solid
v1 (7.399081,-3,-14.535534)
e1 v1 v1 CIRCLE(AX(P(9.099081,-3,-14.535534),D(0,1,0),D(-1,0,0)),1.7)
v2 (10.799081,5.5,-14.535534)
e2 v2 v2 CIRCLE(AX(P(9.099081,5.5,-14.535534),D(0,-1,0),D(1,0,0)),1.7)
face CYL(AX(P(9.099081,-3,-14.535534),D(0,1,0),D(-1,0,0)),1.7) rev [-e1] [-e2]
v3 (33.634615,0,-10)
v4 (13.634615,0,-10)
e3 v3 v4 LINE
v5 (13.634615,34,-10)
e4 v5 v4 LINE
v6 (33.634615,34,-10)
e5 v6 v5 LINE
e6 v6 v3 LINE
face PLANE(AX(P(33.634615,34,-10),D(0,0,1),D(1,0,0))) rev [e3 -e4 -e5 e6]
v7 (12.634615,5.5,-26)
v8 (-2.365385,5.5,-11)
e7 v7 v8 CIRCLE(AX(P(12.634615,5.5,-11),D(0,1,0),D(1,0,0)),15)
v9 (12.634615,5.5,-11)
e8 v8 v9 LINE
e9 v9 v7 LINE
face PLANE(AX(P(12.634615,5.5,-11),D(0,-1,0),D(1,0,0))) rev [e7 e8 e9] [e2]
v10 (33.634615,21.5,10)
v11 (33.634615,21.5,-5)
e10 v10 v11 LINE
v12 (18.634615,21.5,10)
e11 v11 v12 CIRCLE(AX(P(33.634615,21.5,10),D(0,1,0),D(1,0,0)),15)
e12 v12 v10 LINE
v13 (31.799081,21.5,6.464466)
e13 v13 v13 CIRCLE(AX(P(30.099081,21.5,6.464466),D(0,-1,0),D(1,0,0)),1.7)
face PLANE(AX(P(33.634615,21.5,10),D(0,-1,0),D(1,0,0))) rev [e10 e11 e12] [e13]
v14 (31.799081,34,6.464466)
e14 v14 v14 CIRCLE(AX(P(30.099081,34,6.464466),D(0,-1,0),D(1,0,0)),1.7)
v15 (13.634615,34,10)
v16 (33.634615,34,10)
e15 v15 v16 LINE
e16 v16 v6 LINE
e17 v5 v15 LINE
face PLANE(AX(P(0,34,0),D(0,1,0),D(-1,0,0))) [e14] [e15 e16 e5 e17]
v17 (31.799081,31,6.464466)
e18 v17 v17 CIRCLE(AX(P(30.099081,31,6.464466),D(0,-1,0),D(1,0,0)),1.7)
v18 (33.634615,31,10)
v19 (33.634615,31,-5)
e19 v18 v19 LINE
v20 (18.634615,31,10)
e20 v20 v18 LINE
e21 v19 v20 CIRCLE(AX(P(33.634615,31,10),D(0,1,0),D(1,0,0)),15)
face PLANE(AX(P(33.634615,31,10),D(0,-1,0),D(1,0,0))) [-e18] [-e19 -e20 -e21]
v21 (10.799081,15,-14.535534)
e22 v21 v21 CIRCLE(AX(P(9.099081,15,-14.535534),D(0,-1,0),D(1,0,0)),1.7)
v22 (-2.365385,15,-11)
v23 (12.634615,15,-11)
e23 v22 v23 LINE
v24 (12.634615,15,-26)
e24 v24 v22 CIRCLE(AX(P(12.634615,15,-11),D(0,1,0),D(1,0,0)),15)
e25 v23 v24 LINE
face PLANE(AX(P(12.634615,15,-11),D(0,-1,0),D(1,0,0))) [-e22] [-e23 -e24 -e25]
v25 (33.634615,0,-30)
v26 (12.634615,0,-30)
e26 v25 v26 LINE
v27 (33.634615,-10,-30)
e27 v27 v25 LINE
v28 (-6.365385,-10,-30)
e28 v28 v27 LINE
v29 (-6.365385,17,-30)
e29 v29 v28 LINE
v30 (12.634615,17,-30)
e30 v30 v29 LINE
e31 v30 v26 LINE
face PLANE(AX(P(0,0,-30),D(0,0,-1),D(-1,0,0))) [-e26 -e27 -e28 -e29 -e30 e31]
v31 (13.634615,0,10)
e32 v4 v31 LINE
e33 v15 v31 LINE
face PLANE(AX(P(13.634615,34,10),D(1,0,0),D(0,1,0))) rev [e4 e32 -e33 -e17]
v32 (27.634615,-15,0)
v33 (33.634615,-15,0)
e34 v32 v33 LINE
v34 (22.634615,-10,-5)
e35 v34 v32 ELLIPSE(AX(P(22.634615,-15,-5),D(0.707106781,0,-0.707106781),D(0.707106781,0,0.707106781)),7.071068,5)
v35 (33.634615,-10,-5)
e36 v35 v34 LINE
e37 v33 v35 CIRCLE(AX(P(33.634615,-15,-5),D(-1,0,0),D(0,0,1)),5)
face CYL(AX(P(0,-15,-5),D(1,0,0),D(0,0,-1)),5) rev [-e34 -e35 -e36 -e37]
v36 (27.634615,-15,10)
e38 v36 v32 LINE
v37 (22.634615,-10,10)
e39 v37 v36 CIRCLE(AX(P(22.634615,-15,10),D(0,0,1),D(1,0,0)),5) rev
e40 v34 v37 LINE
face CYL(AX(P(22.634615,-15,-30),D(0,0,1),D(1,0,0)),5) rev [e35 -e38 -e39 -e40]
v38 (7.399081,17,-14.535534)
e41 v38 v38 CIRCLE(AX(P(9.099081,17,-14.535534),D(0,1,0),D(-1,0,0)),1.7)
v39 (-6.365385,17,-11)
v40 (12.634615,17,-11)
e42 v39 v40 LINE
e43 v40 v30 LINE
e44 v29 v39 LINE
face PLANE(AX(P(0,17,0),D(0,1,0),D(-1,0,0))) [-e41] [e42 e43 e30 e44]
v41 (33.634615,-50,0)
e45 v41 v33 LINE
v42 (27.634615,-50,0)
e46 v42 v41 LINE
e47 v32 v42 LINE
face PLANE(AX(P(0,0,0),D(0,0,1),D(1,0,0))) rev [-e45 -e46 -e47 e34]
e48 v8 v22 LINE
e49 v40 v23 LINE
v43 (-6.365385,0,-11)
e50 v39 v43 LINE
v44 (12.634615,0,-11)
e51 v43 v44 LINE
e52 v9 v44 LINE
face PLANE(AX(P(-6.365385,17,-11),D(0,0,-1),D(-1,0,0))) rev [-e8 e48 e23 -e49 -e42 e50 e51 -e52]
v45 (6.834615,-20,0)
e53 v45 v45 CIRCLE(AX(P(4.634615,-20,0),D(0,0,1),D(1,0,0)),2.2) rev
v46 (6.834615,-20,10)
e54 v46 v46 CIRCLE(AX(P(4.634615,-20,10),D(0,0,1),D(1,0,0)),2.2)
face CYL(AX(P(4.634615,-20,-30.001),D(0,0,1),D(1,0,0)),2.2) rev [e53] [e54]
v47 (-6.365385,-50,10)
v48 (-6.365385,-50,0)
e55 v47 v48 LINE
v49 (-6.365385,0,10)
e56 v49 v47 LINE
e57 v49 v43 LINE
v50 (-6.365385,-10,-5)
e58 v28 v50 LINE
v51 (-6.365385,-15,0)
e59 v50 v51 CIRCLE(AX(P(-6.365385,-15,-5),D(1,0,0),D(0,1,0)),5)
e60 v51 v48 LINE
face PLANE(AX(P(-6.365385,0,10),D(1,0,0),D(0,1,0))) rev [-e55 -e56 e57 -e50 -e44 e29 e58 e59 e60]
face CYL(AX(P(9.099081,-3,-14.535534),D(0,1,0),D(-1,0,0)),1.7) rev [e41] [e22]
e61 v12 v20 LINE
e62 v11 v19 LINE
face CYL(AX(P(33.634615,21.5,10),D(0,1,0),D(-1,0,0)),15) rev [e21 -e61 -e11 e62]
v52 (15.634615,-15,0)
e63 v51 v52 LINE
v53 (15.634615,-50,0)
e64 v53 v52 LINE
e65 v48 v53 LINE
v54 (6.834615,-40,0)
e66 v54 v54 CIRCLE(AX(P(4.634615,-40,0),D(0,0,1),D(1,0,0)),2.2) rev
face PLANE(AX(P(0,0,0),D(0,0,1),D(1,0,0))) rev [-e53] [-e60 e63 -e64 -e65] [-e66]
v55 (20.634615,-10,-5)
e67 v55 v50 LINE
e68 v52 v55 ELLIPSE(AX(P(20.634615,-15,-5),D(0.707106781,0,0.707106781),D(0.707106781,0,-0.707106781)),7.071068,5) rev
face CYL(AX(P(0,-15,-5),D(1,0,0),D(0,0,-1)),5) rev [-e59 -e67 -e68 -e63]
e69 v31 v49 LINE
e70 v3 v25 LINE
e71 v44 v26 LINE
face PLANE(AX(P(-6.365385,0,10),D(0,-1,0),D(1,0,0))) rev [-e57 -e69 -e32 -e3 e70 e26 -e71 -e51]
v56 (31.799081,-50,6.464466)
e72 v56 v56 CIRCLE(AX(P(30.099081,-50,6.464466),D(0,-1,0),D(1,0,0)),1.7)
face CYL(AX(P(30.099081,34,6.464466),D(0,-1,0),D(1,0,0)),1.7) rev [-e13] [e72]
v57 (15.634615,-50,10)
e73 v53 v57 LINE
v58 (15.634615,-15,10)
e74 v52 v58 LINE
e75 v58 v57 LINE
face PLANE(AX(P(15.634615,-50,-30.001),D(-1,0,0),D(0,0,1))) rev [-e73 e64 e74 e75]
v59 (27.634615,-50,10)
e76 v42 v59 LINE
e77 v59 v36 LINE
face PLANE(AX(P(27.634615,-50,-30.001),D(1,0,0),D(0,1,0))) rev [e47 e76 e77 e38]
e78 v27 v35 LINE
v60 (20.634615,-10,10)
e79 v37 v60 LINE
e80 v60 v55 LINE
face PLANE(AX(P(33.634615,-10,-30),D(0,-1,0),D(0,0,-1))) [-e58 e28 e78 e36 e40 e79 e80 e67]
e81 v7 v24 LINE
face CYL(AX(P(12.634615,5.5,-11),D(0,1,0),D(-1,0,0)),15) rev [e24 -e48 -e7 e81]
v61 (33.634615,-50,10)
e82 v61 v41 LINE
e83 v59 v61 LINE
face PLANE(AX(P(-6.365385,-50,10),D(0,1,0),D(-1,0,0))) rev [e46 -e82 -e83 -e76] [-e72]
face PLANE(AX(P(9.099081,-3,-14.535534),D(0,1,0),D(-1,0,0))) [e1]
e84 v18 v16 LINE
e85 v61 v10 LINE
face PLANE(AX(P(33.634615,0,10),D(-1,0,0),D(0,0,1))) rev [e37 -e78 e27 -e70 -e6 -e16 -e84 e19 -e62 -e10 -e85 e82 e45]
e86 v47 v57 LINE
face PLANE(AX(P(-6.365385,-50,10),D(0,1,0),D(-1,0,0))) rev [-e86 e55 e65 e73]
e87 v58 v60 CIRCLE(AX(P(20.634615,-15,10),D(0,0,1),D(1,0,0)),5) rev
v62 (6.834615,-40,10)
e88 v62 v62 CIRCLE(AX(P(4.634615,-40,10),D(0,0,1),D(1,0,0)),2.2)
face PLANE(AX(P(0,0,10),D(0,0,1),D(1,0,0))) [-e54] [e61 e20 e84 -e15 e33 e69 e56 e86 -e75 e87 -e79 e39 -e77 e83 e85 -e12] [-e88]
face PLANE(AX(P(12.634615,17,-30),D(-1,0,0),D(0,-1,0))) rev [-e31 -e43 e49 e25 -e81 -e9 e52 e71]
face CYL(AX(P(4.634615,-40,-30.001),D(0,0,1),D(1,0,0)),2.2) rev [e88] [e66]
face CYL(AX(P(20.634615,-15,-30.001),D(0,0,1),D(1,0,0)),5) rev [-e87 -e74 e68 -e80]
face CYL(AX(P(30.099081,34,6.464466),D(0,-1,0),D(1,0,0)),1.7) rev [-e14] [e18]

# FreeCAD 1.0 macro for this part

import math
import FreeCAD as App
import Part
import Sketcher

V = App.Vector
Q = App.Units.Quantity


def edges_at(feature, points):
    """Names of the edges that pass closest to the given points."""
    edges = feature.Shape.Edges
    near = lambda p: min(range(len(edges)), key=lambda i: edges[i].distToShape(Part.Vertex(*p))[0])
    return sorted({f"Edge{near(p) + 1}" for p in points})


def add_polygon(sketch, points):
    """Adds a closed chain of lines whose ends are joined by coincident constraints."""
    first, n = sketch.GeometryCount, len(points)
    for a, b in zip(points, points[1:] + points[:1]):
        sketch.addGeometry(Part.LineSegment(App.Vector(*a, 0), App.Vector(*b, 0)), False)
    for i in range(n):
        sketch.addConstraint(Sketcher.Constraint("Coincident", first + i, 2, first + (i + 1) % n, 1))

doc = App.newDocument("Part")
body = doc.addObject("PartDesign::Body", "Body")

sketch1 = doc.addObject("Sketcher::SketchObject", "Sketch")
body.addObject(sketch1)
sketch1.AttachmentSupport = (doc.XY_Plane, [""])
sketch1.MapMode = "FlatFace"
add_polygon(sketch1, [(-6, 0), (-6, -50), (34, -50), (34, 0)])
sketch1.addConstraint([
    Sketcher.Constraint("Vertical", 0),
    Sketcher.Constraint("Horizontal", 1),
    Sketcher.Constraint("Vertical", 2),
    Sketcher.Constraint("Horizontal", 3),
    Sketcher.Constraint("PointOnObject", 2, 2, -1),
    Sketcher.Constraint("DistanceX", 1, 1, 1, 2, Q("40 mm")),
    Sketcher.Constraint("DistanceY", 0, 2, 0, 1, Q("50 mm")),
    Sketcher.Constraint("DistanceX", 0, 2, -1, 1, Q("6.365385 mm")),
])
pad1 = doc.addObject("PartDesign::Pad", "Pad")
body.addObject(pad1)
pad1.Profile = sketch1
pad1.Length = 10

sketch2 = doc.addObject("Sketcher::SketchObject", "Sketch001")
body.addObject(sketch2)
sketch2.AttachmentSupport = (doc.XY_Plane, [""])
sketch2.MapMode = "FlatFace"
add_polygon(sketch2, [(-6, 0), (-6, -10), (34, -10), (34, 0)])
sketch2.addConstraint([
    Sketcher.Constraint("Vertical", 0),
    Sketcher.Constraint("Horizontal", 1),
    Sketcher.Constraint("Vertical", 2),
    Sketcher.Constraint("Horizontal", 3),
    Sketcher.Constraint("PointOnObject", 2, 2, -1),
    Sketcher.Constraint("DistanceX", 1, 1, 1, 2, Q("40 mm")),
    Sketcher.Constraint("DistanceY", 0, 2, 0, 1, Q("10 mm")),
    Sketcher.Constraint("DistanceX", 0, 2, -1, 1, Q("6.365385 mm")),
])
pad2 = doc.addObject("PartDesign::Pad", "Pad001")
body.addObject(pad2)
pad2.Profile = sketch2
pad2.Length = 30
pad2.Reversed = True

sketch3 = doc.addObject("Sketcher::SketchObject", "Sketch002")
body.addObject(sketch3)
sketch3.AttachmentSupport = (doc.XZ_Plane, [""])
sketch3.MapMode = "FlatFace"
add_polygon(sketch3, [(14, -10), (14, 10), (34, 10), (34, -10)])
sketch3.addConstraint([
    Sketcher.Constraint("Vertical", 0),
    Sketcher.Constraint("Horizontal", 1),
    Sketcher.Constraint("Vertical", 2),
    Sketcher.Constraint("Horizontal", 3),
    Sketcher.Constraint("Equal", 3, 0),
    Sketcher.Constraint("DistanceX", 1, 1, 1, 2, Q("20 mm")),
    Sketcher.Constraint("DistanceY", -1, 1, 0, 2, Q("10 mm")),
    Sketcher.Constraint("DistanceX", -1, 1, 0, 2, Q("13.634615 mm")),
])
pad3 = doc.addObject("PartDesign::Pad", "Pad002")
body.addObject(pad3)
pad3.Profile = sketch3
pad3.Length = 34
pad3.Reversed = True

sketch4 = doc.addObject("Sketcher::SketchObject", "Sketch003")
body.addObject(sketch4)
sketch4.AttachmentSupport = (doc.XZ_Plane, [""])
sketch4.MapMode = "FlatFace"
add_polygon(sketch4, [(-6, -30), (-6, -11), (13, -11), (13, -30)])
sketch4.addConstraint([
    Sketcher.Constraint("Vertical", 0),
    Sketcher.Constraint("Horizontal", 1),
    Sketcher.Constraint("Vertical", 2),
    Sketcher.Constraint("Horizontal", 3),
    Sketcher.Constraint("Equal", 3, 0),
    Sketcher.Constraint("DistanceX", 1, 1, 1, 2, Q("19 mm")),
    Sketcher.Constraint("DistanceY", 0, 2, -1, 1, Q("11 mm")),
    Sketcher.Constraint("DistanceX", 0, 2, -1, 1, Q("6.365385 mm")),
])
pad4 = doc.addObject("PartDesign::Pad", "Pad003")
body.addObject(pad4)
pad4.Profile = sketch4
pad4.Length = 17
pad4.Reversed = True

sketch5 = doc.addObject("Sketcher::SketchObject", "Sketch004")
body.addObject(sketch5)
sketch5.AttachmentSupport = (doc.XZ_Plane, [""])
sketch5.MapMode = "FlatFace"
sketch5.AttachmentOffset = App.Placement(V(0, 0, -31), App.Rotation())
sketch5.addGeometry([
    Part.LineSegment(V(34, 10, 0), V(34, -5, 0)),
    Part.ArcOfCircle(Part.Circle(V(34, 10, 0), V(0, 0, 1), 15), math.radians(-180), math.radians(-90)),
    Part.LineSegment(V(19, 10, 0), V(34, 10, 0)),
], False)
sketch5.addConstraint([
    Sketcher.Constraint("Coincident", 0, 2, 1, 2),
    Sketcher.Constraint("Coincident", 1, 1, 2, 1),
    Sketcher.Constraint("Coincident", 2, 2, 0, 1),
    Sketcher.Constraint("Vertical", 0),
    Sketcher.Constraint("Horizontal", 2),
    Sketcher.Constraint("Coincident", 2, 2, 1, 3),
    Sketcher.Constraint("Radius", 1, Q("15 mm")),
    Sketcher.Constraint("DistanceY", -1, 1, 1, 3, Q("10 mm")),
    Sketcher.Constraint("DistanceX", -1, 1, 1, 3, Q("33.634615 mm")),
])
pocket1 = doc.addObject("PartDesign::Pocket", "Pocket")
body.addObject(pocket1)
pocket1.Profile = sketch5
pocket1.Length = 9.5
pocket1.Reversed = True

sketch6 = doc.addObject("Sketcher::SketchObject", "Sketch005")
body.addObject(sketch6)
sketch6.AttachmentSupport = (doc.XZ_Plane, [""])
sketch6.MapMode = "FlatFace"
sketch6.AttachmentOffset = App.Placement(V(0, 0, -15), App.Rotation())
sketch6.addGeometry([
    Part.LineSegment(V(-2, -11, 0), V(13, -11, 0)),
    Part.LineSegment(V(13, -11, 0), V(13, -26, 0)),
    Part.ArcOfCircle(Part.Circle(V(13, -11, 0), V(0, 0, 1), 15), math.radians(-180), math.radians(-90)),
], False)
sketch6.addConstraint([
    Sketcher.Constraint("Coincident", 0, 2, 1, 1),
    Sketcher.Constraint("Coincident", 1, 2, 2, 2),
    Sketcher.Constraint("Coincident", 2, 1, 0, 1),
    Sketcher.Constraint("Horizontal", 0),
    Sketcher.Constraint("Vertical", 1),
    Sketcher.Constraint("Coincident", 0, 2, 2, 3),
    Sketcher.Constraint("Radius", 2, Q("15 mm")),
    Sketcher.Constraint("DistanceY", 2, 3, -1, 1, Q("11 mm")),
    Sketcher.Constraint("DistanceX", -1, 1, 2, 3, Q("12.634615 mm")),
])
pocket2 = doc.addObject("PartDesign::Pocket", "Pocket001")
body.addObject(pocket2)
pocket2.Profile = sketch6
pocket2.Length = 9.5
pocket2.Reversed = True

sketch7 = doc.addObject("Sketcher::SketchObject", "Sketch006")
body.addObject(sketch7)
sketch7.AttachmentSupport = (doc.XZ_Plane, [""])
sketch7.MapMode = "FlatFace"
sketch7.AttachmentOffset = App.Placement(V(0, 0, -31), App.Rotation())
sketch7.addGeometry(Part.Circle(V(30.1, 6.5, 0), V(0, 0, 1), 1.7), False)
sketch7.addConstraint([
    Sketcher.Constraint("Diameter", 0, Q("3.4 mm")),
    Sketcher.Constraint("DistanceX", -1, 1, 0, 3, Q("30.099081 mm")),
    Sketcher.Constraint("DistanceY", -1, 1, 0, 3, Q("6.464466 mm")),
])
pocket3 = doc.addObject("PartDesign::Pocket", "Pocket002")
body.addObject(pocket3)
pocket3.Profile = sketch7
pocket3.Type = "ThroughAll"
pocket3.Midplane = True

sketch8 = doc.addObject("Sketcher::SketchObject", "Sketch007")
body.addObject(sketch8)
sketch8.AttachmentSupport = (doc.XY_Plane, [""])
sketch8.MapMode = "FlatFace"
sketch8.AttachmentOffset = App.Placement(V(0, 0, 10), App.Rotation())
add_polygon(sketch8, [(16, -10), (16, -50), (28, -50), (28, -10)])
sketch8.addConstraint([
    Sketcher.Constraint("Vertical", 0),
    Sketcher.Constraint("Horizontal", 1),
    Sketcher.Constraint("Vertical", 2),
    Sketcher.Constraint("Horizontal", 3),
    Sketcher.Constraint("DistanceX", 1, 1, 1, 2, Q("12 mm")),
    Sketcher.Constraint("DistanceY", 0, 2, 0, 1, Q("40 mm")),
    Sketcher.Constraint("DistanceY", 0, 2, -1, 1, Q("50 mm")),
    Sketcher.Constraint("DistanceX", -1, 1, 0, 2, Q("15.634615 mm")),
])
pocket4 = doc.addObject("PartDesign::Pocket", "Pocket003")
body.addObject(pocket4)
pocket4.Profile = sketch8
pocket4.Type = "UpToFirst"
doc.recompute()

fillet = doc.addObject("PartDesign::Fillet", "Fillet")
body.addObject(fillet)
fillet.Base = (pocket4, edges_at(pocket4, [
    (4.635, -10, 0),
    (30.635, -10, 0),
    (27.635, -10, 5),
    (15.635, -10, 5),
]))
fillet.Radius = 5

sketch9 = doc.addObject("Sketcher::SketchObject", "Sketch008")
body.addObject(sketch9)
sketch9.AttachmentSupport = (doc.XY_Plane, [""])
sketch9.MapMode = "FlatFace"
sketch9.AttachmentOffset = App.Placement(V(0, 0, 10), App.Rotation())
sketch9.addGeometry(Part.Circle(V(4.6, -20, 0), V(0, 0, 1), 2.2), False)
sketch9.addConstraint([
    Sketcher.Constraint("Diameter", 0, Q("4.4 mm")),
    Sketcher.Constraint("DistanceY", 0, 3, -1, 1, Q("20 mm")),
    Sketcher.Constraint("DistanceX", -1, 1, 0, 3, Q("4.634615 mm")),
])
pocket5 = doc.addObject("PartDesign::Pocket", "Pocket004")
body.addObject(pocket5)
pocket5.Profile = sketch9
pocket5.Type = "UpToFirst"

sketch10 = doc.addObject("Sketcher::SketchObject", "Sketch009")
body.addObject(sketch10)
sketch10.AttachmentSupport = (doc.XY_Plane, [""])
sketch10.MapMode = "FlatFace"
sketch10.AttachmentOffset = App.Placement(V(0, 0, 10), App.Rotation())
sketch10.addGeometry(Part.Circle(V(4.6, -40, 0), V(0, 0, 1), 2.2), False)
sketch10.addConstraint([
    Sketcher.Constraint("Diameter", 0, Q("4.4 mm")),
    Sketcher.Constraint("DistanceY", 0, 3, -1, 1, Q("40 mm")),
    Sketcher.Constraint("DistanceX", -1, 1, 0, 3, Q("4.634615 mm")),
])
pocket6 = doc.addObject("PartDesign::Pocket", "Pocket005")
body.addObject(pocket6)
pocket6.Profile = sketch10
pocket6.Type = "UpToFirst"

sketch11 = doc.addObject("Sketcher::SketchObject", "Sketch010")
body.addObject(sketch11)
sketch11.AttachmentSupport = (doc.XZ_Plane, [""])
sketch11.MapMode = "FlatFace"
sketch11.AttachmentOffset = App.Placement(V(0, 0, -17), App.Rotation())
sketch11.addGeometry(Part.Circle(V(9.1, -14.5, 0), V(0, 0, 1), 1.7), False)
sketch11.addConstraint([
    Sketcher.Constraint("Diameter", 0, Q("3.4 mm")),
    Sketcher.Constraint("DistanceX", -1, 1, 0, 3, Q("9.099081 mm")),
    Sketcher.Constraint("DistanceY", 0, 3, -1, 1, Q("14.535534 mm")),
])
pocket7 = doc.addObject("PartDesign::Pocket", "Pocket006")
body.addObject(pocket7)
pocket7.Profile = sketch11
pocket7.Length = 20
pocket7.Reversed = True

doc.recompute()
